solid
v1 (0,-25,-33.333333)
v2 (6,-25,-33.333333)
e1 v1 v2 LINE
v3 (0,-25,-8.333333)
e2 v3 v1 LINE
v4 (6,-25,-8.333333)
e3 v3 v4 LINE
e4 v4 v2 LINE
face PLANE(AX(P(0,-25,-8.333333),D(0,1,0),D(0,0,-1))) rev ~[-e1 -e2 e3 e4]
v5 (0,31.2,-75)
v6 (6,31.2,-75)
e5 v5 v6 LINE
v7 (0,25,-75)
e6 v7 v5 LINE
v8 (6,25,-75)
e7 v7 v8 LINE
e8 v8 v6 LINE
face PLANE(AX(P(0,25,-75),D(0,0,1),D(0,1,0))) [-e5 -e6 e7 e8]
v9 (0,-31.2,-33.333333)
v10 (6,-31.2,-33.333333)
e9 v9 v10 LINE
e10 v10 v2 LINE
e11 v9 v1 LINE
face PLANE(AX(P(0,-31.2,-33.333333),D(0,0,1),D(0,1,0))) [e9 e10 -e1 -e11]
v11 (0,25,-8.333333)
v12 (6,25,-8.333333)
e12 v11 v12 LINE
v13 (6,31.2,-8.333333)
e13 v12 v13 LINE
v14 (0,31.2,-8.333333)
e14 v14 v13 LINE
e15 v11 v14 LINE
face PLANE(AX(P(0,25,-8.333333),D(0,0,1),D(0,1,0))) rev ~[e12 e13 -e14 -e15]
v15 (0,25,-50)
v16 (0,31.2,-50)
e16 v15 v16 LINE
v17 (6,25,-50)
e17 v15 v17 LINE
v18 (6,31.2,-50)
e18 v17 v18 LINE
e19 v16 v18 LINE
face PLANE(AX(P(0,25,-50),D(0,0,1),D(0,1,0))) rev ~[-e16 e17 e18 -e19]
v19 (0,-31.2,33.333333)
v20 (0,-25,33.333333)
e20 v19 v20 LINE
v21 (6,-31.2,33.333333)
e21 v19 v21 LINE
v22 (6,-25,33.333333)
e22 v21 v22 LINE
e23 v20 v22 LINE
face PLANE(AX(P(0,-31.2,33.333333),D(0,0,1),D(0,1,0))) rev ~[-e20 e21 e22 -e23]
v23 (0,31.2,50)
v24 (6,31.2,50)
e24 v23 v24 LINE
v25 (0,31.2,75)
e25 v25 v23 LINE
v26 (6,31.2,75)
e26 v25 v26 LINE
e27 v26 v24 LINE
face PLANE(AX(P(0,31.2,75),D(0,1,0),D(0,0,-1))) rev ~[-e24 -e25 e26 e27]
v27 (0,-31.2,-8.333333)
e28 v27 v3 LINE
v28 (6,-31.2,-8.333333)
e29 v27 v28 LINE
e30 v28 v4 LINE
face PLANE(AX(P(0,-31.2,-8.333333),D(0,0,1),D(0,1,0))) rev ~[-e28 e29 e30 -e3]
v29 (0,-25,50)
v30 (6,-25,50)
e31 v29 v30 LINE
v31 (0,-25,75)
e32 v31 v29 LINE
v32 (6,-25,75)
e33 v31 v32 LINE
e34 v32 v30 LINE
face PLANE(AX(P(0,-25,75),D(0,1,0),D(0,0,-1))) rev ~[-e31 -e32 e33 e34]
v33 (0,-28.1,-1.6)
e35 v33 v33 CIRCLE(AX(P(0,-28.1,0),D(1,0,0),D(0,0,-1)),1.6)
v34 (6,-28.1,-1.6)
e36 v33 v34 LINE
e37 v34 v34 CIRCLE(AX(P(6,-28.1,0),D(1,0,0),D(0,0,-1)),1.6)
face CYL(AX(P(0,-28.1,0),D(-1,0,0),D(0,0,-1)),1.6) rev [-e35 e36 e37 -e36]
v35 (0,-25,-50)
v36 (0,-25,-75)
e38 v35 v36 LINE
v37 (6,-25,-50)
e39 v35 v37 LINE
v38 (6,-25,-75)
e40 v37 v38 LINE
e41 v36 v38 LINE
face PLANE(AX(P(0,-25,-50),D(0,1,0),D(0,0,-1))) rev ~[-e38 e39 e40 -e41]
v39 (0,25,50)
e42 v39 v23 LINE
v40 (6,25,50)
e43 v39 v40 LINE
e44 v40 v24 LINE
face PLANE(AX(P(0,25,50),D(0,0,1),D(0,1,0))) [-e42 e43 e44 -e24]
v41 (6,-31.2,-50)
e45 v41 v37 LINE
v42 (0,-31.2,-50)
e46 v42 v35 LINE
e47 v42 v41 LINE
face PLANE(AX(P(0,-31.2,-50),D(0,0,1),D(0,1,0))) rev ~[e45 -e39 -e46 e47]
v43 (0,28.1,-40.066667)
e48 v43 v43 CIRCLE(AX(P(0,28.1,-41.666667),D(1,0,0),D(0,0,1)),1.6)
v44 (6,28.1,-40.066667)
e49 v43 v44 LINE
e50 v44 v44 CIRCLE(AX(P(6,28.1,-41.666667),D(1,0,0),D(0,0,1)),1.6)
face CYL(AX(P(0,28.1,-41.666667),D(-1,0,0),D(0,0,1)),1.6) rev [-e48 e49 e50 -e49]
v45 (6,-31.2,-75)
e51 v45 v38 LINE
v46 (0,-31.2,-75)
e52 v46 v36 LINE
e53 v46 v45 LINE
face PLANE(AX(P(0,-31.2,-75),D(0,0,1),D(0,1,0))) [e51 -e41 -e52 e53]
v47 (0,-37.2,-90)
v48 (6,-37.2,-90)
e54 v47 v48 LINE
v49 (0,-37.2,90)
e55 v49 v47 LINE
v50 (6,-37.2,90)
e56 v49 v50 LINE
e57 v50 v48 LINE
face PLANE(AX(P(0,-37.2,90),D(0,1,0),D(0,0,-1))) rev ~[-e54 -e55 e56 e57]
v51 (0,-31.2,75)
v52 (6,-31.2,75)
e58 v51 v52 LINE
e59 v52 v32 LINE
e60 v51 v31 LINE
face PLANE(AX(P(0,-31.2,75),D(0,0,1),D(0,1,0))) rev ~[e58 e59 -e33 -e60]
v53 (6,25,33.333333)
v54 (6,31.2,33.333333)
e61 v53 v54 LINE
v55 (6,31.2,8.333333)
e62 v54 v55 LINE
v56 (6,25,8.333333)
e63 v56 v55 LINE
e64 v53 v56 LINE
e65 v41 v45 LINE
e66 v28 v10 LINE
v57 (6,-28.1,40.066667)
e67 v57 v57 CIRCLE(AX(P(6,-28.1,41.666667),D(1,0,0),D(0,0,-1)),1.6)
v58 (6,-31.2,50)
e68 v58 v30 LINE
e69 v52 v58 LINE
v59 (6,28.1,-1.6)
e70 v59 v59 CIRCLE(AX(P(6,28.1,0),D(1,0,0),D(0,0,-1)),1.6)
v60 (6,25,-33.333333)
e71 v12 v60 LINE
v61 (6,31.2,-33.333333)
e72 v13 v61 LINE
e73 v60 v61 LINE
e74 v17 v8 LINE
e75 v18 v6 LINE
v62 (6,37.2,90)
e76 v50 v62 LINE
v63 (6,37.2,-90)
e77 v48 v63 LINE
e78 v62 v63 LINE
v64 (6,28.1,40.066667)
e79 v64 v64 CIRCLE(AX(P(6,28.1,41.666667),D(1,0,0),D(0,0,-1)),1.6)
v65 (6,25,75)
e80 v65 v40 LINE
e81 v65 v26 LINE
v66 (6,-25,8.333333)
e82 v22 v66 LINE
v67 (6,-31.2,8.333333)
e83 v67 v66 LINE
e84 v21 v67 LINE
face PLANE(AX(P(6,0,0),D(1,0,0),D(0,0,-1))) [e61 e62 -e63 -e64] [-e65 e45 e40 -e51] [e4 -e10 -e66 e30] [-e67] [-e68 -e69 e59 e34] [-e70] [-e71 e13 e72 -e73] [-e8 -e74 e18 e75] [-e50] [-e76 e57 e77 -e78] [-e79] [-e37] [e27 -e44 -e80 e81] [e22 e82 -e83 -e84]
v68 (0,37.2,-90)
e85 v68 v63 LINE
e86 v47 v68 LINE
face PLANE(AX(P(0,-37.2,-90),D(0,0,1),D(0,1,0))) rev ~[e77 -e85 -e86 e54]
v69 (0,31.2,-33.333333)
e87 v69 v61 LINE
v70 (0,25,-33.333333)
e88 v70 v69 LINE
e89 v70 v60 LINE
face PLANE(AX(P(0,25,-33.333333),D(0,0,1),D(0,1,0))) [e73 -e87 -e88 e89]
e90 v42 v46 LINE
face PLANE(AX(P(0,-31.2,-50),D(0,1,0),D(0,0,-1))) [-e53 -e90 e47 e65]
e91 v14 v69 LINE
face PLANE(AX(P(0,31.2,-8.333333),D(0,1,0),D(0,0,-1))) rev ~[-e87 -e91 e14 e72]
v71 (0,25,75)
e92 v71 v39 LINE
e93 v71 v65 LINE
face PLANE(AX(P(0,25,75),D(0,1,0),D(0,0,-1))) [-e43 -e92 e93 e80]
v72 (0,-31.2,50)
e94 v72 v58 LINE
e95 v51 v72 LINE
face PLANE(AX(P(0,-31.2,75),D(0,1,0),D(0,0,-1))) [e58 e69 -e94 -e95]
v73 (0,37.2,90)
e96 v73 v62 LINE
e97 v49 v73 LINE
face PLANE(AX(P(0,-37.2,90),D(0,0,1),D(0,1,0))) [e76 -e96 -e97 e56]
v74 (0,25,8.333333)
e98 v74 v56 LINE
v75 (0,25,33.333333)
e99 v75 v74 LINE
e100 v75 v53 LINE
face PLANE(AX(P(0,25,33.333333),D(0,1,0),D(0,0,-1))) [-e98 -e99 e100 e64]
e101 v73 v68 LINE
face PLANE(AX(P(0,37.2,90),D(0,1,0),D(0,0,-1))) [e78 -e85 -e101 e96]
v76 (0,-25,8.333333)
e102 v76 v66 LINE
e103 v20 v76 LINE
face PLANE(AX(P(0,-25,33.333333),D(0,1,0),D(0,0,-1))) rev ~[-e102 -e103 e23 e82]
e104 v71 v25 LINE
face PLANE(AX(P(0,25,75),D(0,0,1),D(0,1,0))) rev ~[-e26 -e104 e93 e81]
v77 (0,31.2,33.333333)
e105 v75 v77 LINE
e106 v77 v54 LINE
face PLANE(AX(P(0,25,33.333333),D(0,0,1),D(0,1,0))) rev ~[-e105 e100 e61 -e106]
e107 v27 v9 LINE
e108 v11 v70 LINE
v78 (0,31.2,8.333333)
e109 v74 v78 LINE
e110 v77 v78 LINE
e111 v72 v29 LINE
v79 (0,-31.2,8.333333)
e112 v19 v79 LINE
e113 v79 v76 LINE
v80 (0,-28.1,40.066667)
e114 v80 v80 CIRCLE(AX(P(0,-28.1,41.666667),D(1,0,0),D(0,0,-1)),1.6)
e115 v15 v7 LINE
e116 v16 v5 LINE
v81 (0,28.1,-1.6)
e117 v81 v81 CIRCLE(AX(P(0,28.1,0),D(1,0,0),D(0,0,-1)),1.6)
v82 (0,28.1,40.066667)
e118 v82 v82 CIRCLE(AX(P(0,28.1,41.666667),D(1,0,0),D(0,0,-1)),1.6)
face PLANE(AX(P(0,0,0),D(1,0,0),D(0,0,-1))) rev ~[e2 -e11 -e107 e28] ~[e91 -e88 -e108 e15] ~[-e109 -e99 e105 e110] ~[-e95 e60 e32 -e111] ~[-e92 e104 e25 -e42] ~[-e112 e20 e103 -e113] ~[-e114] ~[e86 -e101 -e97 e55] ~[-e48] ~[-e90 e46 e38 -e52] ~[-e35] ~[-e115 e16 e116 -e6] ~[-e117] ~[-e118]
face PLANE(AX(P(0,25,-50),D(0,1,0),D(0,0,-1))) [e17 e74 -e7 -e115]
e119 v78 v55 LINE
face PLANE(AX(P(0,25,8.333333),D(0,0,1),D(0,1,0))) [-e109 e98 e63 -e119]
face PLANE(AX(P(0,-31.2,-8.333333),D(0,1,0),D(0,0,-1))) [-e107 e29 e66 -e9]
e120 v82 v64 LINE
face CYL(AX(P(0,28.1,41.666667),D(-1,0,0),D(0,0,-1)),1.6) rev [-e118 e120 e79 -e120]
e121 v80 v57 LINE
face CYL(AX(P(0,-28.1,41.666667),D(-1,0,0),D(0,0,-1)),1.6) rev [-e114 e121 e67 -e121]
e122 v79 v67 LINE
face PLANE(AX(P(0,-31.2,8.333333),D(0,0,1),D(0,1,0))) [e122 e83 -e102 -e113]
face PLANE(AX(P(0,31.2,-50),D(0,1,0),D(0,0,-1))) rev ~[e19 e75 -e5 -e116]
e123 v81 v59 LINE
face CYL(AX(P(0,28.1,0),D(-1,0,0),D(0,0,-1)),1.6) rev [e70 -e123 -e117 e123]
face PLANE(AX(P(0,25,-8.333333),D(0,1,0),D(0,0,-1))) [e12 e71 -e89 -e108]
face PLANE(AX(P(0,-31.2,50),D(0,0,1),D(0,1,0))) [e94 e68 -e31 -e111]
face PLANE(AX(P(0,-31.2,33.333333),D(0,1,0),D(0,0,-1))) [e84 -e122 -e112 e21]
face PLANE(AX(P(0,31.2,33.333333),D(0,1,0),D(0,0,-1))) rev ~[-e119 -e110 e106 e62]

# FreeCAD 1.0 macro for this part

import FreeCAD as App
import Part
import Sketcher

V = App.Vector
Q = App.Units.Quantity


def add_polygon(sketch, points):
    """Adds a closed chain of lines whose ends are joined by coincident constraints."""
    first, n = sketch.GeometryCount, len(points)
    for a, b in zip(points, points[1:] + points[:1]):
        sketch.addGeometry(Part.LineSegment(App.Vector(*a, 0), App.Vector(*b, 0)), False)
    for i in range(n):
        sketch.addConstraint(Sketcher.Constraint("Coincident", first + i, 2, first + (i + 1) % n, 1))

doc = App.newDocument("Part")
params = doc.addObject("Spreadsheet::Sheet", "Params")
for row, (alias, value) in enumerate([
    ("sketch1_diameter", "3.2 mm"),
    ("sketch1_height", "180 mm"),
    ("sketch1_height2", "25 mm"),
    ("sketch1_width", "74.4 mm"),
    ("sketch1_width2", "6.2 mm"),
    ("pad1_length", "6 mm"),
], start=1):
    params.set(f"A{row}", alias)
    params.set(f"B{row}", "=" + value)
    params.setAlias(f"B{row}", alias)

body = doc.addObject("PartDesign::Body", "Body")

# Sketch on YZ plane
sketch1 = body.newObject("Sketcher::SketchObject", "Sketch")
sketch1.AttachmentSupport = (doc.getObject("YZ_Plane"), [""])
sketch1.MapMode = "FlatFace"
add_polygon(sketch1, [(37.2, 90), (-37.2, 90), (-37.2, -90), (37.2, -90)])  # lines 0-3
add_polygon(sketch1, [(-31.2, 50), (-31.2, 75), (-25, 75), (-25, 50)])  # lines 4-7
sketch1.addGeometry(Part.Circle(V(-28.1, 41.7, 0), V(0, 0, 1), 1.6), False)  # 8
add_polygon(sketch1, [(-31.2, 8.3), (-31.2, 33.3), (-25, 33.3), (-25, 8.3)])  # lines 9-12
sketch1.addGeometry(Part.Circle(V(-28.1, 0, 0), V(0, 0, 1), 1.6), False)  # 13
add_polygon(sketch1, [(-31.2, -33.3), (-31.2, -8.3), (-25, -8.3), (-25, -33.3)])  # lines 14-17
add_polygon(sketch1, [(-31.2, -75), (-31.2, -50), (-25, -50), (-25, -75)])  # lines 18-21
add_polygon(sketch1, [(25, 50), (25, 75), (31.2, 75), (31.2, 50)])  # lines 22-25
sketch1.addGeometry(Part.Circle(V(28.1, 41.7, 0), V(0, 0, 1), 1.6), False)  # 26
add_polygon(sketch1, [(25, 8.3), (25, 33.3), (31.2, 33.3), (31.2, 8.3)])  # lines 27-30
sketch1.addGeometry(Part.Circle(V(28.1, 0, 0), V(0, 0, 1), 1.6), False)  # 31
add_polygon(sketch1, [(25, -33.3), (25, -8.3), (31.2, -8.3), (31.2, -33.3)])  # lines 32-35
sketch1.addGeometry(Part.Circle(V(28.1, -41.7, 0), V(0, 0, 1), 1.6), False)  # 36
add_polygon(sketch1, [(25, -75), (25, -50), (31.2, -50), (31.2, -75)])  # lines 37-40
sketch1.addConstraint([
    Sketcher.Constraint("Horizontal", 0),
    Sketcher.Constraint("Vertical", 1),
    Sketcher.Constraint("Horizontal", 2),
    Sketcher.Constraint("Vertical", 3),
    Sketcher.Constraint("Vertical", 4),
    Sketcher.Constraint("Horizontal", 5),
    Sketcher.Constraint("Vertical", 6),
    Sketcher.Constraint("Horizontal", 7),
    Sketcher.Constraint("Vertical", 9),
    Sketcher.Constraint("Horizontal", 10),
    Sketcher.Constraint("Vertical", 11),
    Sketcher.Constraint("Horizontal", 12),
    Sketcher.Constraint("Vertical", 14),
    Sketcher.Constraint("Horizontal", 15),
    Sketcher.Constraint("Vertical", 16),
    Sketcher.Constraint("Horizontal", 17),
    Sketcher.Constraint("Vertical", 18),
    Sketcher.Constraint("Horizontal", 19),
    Sketcher.Constraint("Vertical", 20),
    Sketcher.Constraint("Horizontal", 21),
    Sketcher.Constraint("Vertical", 22),
    Sketcher.Constraint("Horizontal", 23),
    Sketcher.Constraint("Vertical", 24),
    Sketcher.Constraint("Horizontal", 25),
    Sketcher.Constraint("Vertical", 27),
    Sketcher.Constraint("Horizontal", 28),
    Sketcher.Constraint("Vertical", 29),
    Sketcher.Constraint("Horizontal", 30),
    Sketcher.Constraint("Vertical", 32),
    Sketcher.Constraint("Horizontal", 33),
    Sketcher.Constraint("Vertical", 34),
    Sketcher.Constraint("Horizontal", 35),
    Sketcher.Constraint("Vertical", 37),
    Sketcher.Constraint("Horizontal", 38),
    Sketcher.Constraint("Vertical", 39),
    Sketcher.Constraint("Horizontal", 40),
    Sketcher.Constraint("Equal", 8, 13),
    Sketcher.Constraint("Equal", 13, 26),
    Sketcher.Constraint("Equal", 26, 31),
    Sketcher.Constraint("Equal", 31, 36),
    Sketcher.Constraint("Symmetric", 13, 3, 31, 3, -1, 1),
    Sketcher.Constraint("Symmetric", 8, 3, 36, 3, -1, 1),
    Sketcher.Constraint("Symmetric", 0, 2, 2, 2, -1, 1),
    Sketcher.Constraint("Symmetric", 20, 2, 22, 2, -1, 1),
    Sketcher.Constraint("Symmetric", 18, 2, 24, 2, -1, 1),
    Sketcher.Constraint("Symmetric", 16, 2, 27, 2, -1, 1),
    Sketcher.Constraint("Symmetric", 14, 2, 29, 2, -1, 1),
    Sketcher.Constraint("Symmetric", 11, 2, 32, 2, -1, 1),
    Sketcher.Constraint("Symmetric", 9, 2, 34, 2, -1, 1),
    Sketcher.Constraint("Symmetric", 6, 2, 37, 2, -1, 1),
    Sketcher.Constraint("Symmetric", 4, 2, 39, 2, -1, 1),
    Sketcher.Constraint("Symmetric", 8, 3, 26, 3, -2),
    Sketcher.Constraint("Symmetric", 5, 2, 22, 2, -2),
    Sketcher.Constraint("Symmetric", 7, 2, 24, 2, -2),
    Sketcher.Constraint("Symmetric", 10, 2, 27, 2, -2),
    Sketcher.Constraint("Symmetric", 12, 2, 29, 2, -2),
    Sketcher.Constraint("PointOnObject", 13, 3, -1),
    Sketcher.Constraint("Vertical", 8, 3, 13, 3),
    Sketcher.Constraint("Vertical", 7, 2, 9, 2),
    Sketcher.Constraint("Vertical", 6, 2, 10, 2),
    Sketcher.Constraint("Equal", 6, 9),
    Sketcher.Constraint("Diameter", 8, Q("3.2 mm")),
    Sketcher.Constraint("DistanceY", 1, 2, 1, 1, Q("180 mm")),
    Sketcher.Constraint("DistanceY", 4, 1, 4, 2, Q("25 mm")),
    Sketcher.Constraint("DistanceX", 0, 2, 0, 1, Q("74.4 mm")),
    Sketcher.Constraint("DistanceX", 5, 1, 5, 2, Q("6.2 mm")),
    Sketcher.Constraint("DistanceY", -1, 1, 4, 2, Q("75 mm")),
    Sketcher.Constraint("DistanceX", 5, 2, -1, 1, Q("25 mm")),
    Sketcher.Constraint("DistanceX", 8, 3, -1, 1, Q("28.1 mm")),
    Sketcher.Constraint("DistanceY", -1, 1, 8, 3, Q("41.666667 mm")),
    Sketcher.Constraint("DistanceY", -1, 1, 9, 2, Q("33.333333 mm")),
])
sketch1.setExpression("Constraints[97]", "Params.sketch1_diameter")
sketch1.setExpression("Constraints[98]", "Params.sketch1_height")
sketch1.setExpression("Constraints[99]", "Params.sketch1_height2")
sketch1.setExpression("Constraints[100]", "Params.sketch1_width")
sketch1.setExpression("Constraints[101]", "Params.sketch1_width2")
pad1 = body.newObject("PartDesign::Pad", "Pad")
pad1.Profile = sketch1
pad1.setExpression("Length", "Params.pad1_length")

doc.recompute()
